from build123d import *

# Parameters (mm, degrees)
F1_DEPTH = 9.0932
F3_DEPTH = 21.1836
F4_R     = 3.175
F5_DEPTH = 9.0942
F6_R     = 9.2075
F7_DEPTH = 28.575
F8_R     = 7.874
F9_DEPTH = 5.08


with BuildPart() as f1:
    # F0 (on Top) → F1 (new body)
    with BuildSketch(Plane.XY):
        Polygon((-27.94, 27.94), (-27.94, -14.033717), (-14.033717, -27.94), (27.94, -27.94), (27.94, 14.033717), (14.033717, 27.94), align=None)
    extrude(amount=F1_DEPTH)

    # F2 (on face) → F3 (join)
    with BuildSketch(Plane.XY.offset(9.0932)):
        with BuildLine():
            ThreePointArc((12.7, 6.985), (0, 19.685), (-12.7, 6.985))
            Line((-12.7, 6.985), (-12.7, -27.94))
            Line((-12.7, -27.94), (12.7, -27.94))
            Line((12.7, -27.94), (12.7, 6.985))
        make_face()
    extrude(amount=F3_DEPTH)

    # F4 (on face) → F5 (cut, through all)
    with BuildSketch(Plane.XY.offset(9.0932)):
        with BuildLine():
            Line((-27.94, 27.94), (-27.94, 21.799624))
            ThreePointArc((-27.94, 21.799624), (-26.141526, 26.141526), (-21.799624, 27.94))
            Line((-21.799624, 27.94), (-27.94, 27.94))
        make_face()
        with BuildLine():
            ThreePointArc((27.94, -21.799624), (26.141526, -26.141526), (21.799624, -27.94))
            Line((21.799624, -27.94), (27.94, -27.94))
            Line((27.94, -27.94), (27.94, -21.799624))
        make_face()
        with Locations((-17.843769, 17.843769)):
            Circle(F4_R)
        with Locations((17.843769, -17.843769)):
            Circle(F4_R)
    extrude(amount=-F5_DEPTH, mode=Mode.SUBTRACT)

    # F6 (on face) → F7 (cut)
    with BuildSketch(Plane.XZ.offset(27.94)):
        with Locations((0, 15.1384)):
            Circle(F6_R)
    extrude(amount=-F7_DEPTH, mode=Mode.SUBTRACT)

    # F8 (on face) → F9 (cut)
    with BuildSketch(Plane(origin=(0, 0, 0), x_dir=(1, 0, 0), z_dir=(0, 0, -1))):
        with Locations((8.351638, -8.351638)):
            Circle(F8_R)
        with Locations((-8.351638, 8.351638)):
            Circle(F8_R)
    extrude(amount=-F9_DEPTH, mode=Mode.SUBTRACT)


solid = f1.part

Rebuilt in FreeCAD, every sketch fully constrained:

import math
import FreeCAD as App
import Part
import Sketcher

V = App.Vector
Q = App.Units.Quantity

doc = App.newDocument("Part")
body = doc.addObject("PartDesign::Body", "Body")

# Sketch on XY plane
sketch1 = body.newObject("Sketcher::SketchObject", "Sketch")
sketch1.AttachmentSupport = (doc.getObject("XY_Plane"), [""])
sketch1.MapMode = "FlatFace"
sketch1.addGeometry(Part.LineSegment(V(-28, 28, 0), V(-28, -14, 0)), False)
sketch1.addGeometry(Part.LineSegment(V(-28, -14, 0), V(-14, -28, 0)), False)
sketch1.addGeometry(Part.LineSegment(V(-14, -28, 0), V(28, -28, 0)), False)
sketch1.addGeometry(Part.LineSegment(V(28, -28, 0), V(28, 14, 0)), False)
sketch1.addGeometry(Part.LineSegment(V(28, 14, 0), V(14, 28, 0)), False)
sketch1.addGeometry(Part.LineSegment(V(14, 28, 0), V(-28, 28, 0)), False)
sketch1.addConstraint(Sketcher.Constraint("Coincident", 0, 2, 1, 1))
sketch1.addConstraint(Sketcher.Constraint("Coincident", 1, 2, 2, 1))
sketch1.addConstraint(Sketcher.Constraint("Coincident", 2, 2, 3, 1))
sketch1.addConstraint(Sketcher.Constraint("Coincident", 3, 2, 4, 1))
sketch1.addConstraint(Sketcher.Constraint("Coincident", 4, 2, 5, 1))
sketch1.addConstraint(Sketcher.Constraint("Coincident", 5, 2, 0, 1))
sketch1.addConstraint(Sketcher.Constraint("Vertical", 0))
sketch1.addConstraint(Sketcher.Constraint("Horizontal", 2))
sketch1.addConstraint(Sketcher.Constraint("Vertical", 3))
sketch1.addConstraint(Sketcher.Constraint("Horizontal", 5))
sketch1.addConstraint(Sketcher.Constraint("Symmetric", 0, 2, 3, 2, -1, 1))
sketch1.addConstraint(Sketcher.Constraint("Symmetric", 1, 2, 4, 2, -1, 1))
sketch1.addConstraint(Sketcher.Constraint("Equal", 5, 0))
sketch1.addConstraint(Sketcher.Constraint("Angle", 1, Q("-45 deg")))
sketch1.addConstraint(Sketcher.Constraint("DistanceX", 0, 2, -1, 1, Q("1.1 in")))
sketch1.addConstraint(Sketcher.Constraint("DistanceX", 2, 1, 2, 2, Q("41.973717 mm")))
pad1 = body.newObject("PartDesign::Pad", "Pad")
pad1.Profile = sketch1
pad1.Length = Q("0.358 in")

# Sketch on XY plane
sketch2 = body.newObject("Sketcher::SketchObject", "Sketch001")
sketch2.AttachmentSupport = (doc.getObject("XY_Plane"), [""])
sketch2.MapMode = "FlatFace"
sketch2.AttachmentOffset = App.Placement(V(0, 0, 0.358 * 25.4), App.Rotation())
sketch2.addGeometry(Part.ArcOfCircle(Part.Circle(V(0, 7, 0), V(0, 0, 1), 13), math.radians(0), math.radians(180)), False)
sketch2.addGeometry(Part.LineSegment(V(-13, 7, 0), V(-13, -28, 0)), False)
sketch2.addGeometry(Part.LineSegment(V(-13, -28, 0), V(13, -28, 0)), False)
sketch2.addGeometry(Part.LineSegment(V(13, -28, 0), V(13, 7, 0)), False)
sketch2.addConstraint(Sketcher.Constraint("Tangent", 0, 2, 1, 1))
sketch2.addConstraint(Sketcher.Constraint("Coincident", 1, 2, 2, 1))
sketch2.addConstraint(Sketcher.Constraint("Coincident", 2, 2, 3, 1))
sketch2.addConstraint(Sketcher.Constraint("Tangent", 3, 2, 0, 1))
sketch2.addConstraint(Sketcher.Constraint("Vertical", 1))
sketch2.addConstraint(Sketcher.Constraint("Horizontal", 2))
sketch2.addConstraint(Sketcher.Constraint("Vertical", 3))
sketch2.addConstraint(Sketcher.Constraint("PointOnObject", 0, 3, -2))
sketch2.addConstraint(Sketcher.Constraint("Radius", 0, Q("0.5 in")))
sketch2.addConstraint(Sketcher.Constraint("DistanceY", 1, 2, -1, 1, Q("1.1 in")))
sketch2.addConstraint(Sketcher.Constraint("DistanceY", 1, 2, 1, 1, Q("1.375 in")))
pad2 = body.newObject("PartDesign::Pad", "Pad001")
pad2.Profile = sketch2
pad2.Length = Q("0.834 in")

# Sketch on XY plane
sketch3 = body.newObject("Sketcher::SketchObject", "Sketch002")
sketch3.AttachmentSupport = (doc.getObject("XY_Plane"), [""])
sketch3.MapMode = "FlatFace"
sketch3.AttachmentOffset = App.Placement(V(0, 0, 0.358 * 25.4), App.Rotation())
sketch3.addGeometry(Part.LineSegment(V(-27.9, 27.9, 0), V(-27.9, 21.8, 0)), False)
sketch3.addGeometry(Part.ArcOfCircle(Part.Circle(V(-21.8, 21.8, 0), V(0, 0, 1), 6.1), math.radians(90), math.radians(180)), False)
sketch3.addGeometry(Part.LineSegment(V(-21.8, 27.9, 0), V(-27.9, 27.9, 0)), False)
sketch3.addGeometry(Part.ArcOfCircle(Part.Circle(V(21.8, -21.8, 0), V(0, 0, 1), 6.1), math.radians(-90), math.radians(0)), False)
sketch3.addGeometry(Part.LineSegment(V(21.8, -27.9, 0), V(27.9, -27.9, 0)), False)
sketch3.addGeometry(Part.LineSegment(V(27.9, -27.9, 0), V(27.9, -21.8, 0)), False)
sketch3.addGeometry(Part.Circle(V(-17.8, 17.8, 0), V(0, 0, 1), 3.2), False)
sketch3.addGeometry(Part.Circle(V(17.8, -17.8, 0), V(0, 0, 1), 3.2), False)
sketch3.addConstraint(Sketcher.Constraint("Tangent", 0, 2, 1, 2))
sketch3.addConstraint(Sketcher.Constraint("Tangent", 1, 1, 2, 1))
sketch3.addConstraint(Sketcher.Constraint("Coincident", 2, 2, 0, 1))
sketch3.addConstraint(Sketcher.Constraint("Tangent", 3, 1, 4, 1))
sketch3.addConstraint(Sketcher.Constraint("Coincident", 4, 2, 5, 1))
sketch3.addConstraint(Sketcher.Constraint("Tangent", 5, 2, 3, 2))
sketch3.addConstraint(Sketcher.Constraint("Vertical", 0))
sketch3.addConstraint(Sketcher.Constraint("Horizontal", 2))
sketch3.addConstraint(Sketcher.Constraint("Horizontal", 4))
sketch3.addConstraint(Sketcher.Constraint("Vertical", 5))
sketch3.addConstraint(Sketcher.Constraint("Equal", 1, 3))
sketch3.addConstraint(Sketcher.Constraint("Equal", 6, 7))
sketch3.addConstraint(Sketcher.Constraint("Symmetric", 1, 3, 3, 3, -1, 1))
sketch3.addConstraint(Sketcher.Constraint("Symmetric", 6, 3, 7, 3, -1, 1))
sketch3.addConstraint(Sketcher.Constraint("Diameter", 6, Q("0.25 in")))
sketch3.addConstraint(Sketcher.Constraint("DistanceX", 0, 2, -1, 1, Q("1.1 in")))
sketch3.addConstraint(Sketcher.Constraint("DistanceY", -1, 1, 1, 1, Q("1.1 in")))
sketch3.addConstraint(Sketcher.Constraint("Radius", 1, Q("6.140374 mm")))
sketch3.addConstraint(Sketcher.Constraint("DistanceX", 6, 3, -1, 1, Q("17.843769 mm")))
sketch3.addConstraint(Sketcher.Constraint("DistanceY", -1, 1, 6, 3, Q("17.843769 mm")))
pocket1 = body.newObject("PartDesign::Pocket", "Pocket")
pocket1.Profile = sketch3
pocket1.Type = "ThroughAll"

# Sketch on XZ plane
sketch4 = body.newObject("Sketcher::SketchObject", "Sketch003")
sketch4.AttachmentSupport = (doc.getObject("XZ_Plane"), [""])
sketch4.MapMode = "FlatFace"
sketch4.AttachmentOffset = App.Placement(V(0, 0, 1.1 * 25.4), App.Rotation())
sketch4.addGeometry(Part.Circle(V(0, 15, 0), V(0, 0, 1), 9), False)
sketch4.addConstraint(Sketcher.Constraint("PointOnObject", 0, 3, -2))
sketch4.addConstraint(Sketcher.Constraint("Diameter", 0, Q("0.725 in")))
sketch4.addConstraint(Sketcher.Constraint("DistanceY", -1, 1, 0, 3, Q("0.596 in")))
pocket2 = body.newObject("PartDesign::Pocket", "Pocket001")
pocket2.Profile = sketch4
pocket2.Length = Q("1.125 in")

# Sketch on XY plane
sketch5 = body.newObject("Sketcher::SketchObject", "Sketch004")
sketch5.AttachmentSupport = (doc.getObject("XY_Plane"), [""])
sketch5.MapMode = "FlatFace"
sketch5.addGeometry(Part.Circle(V(8, 8, 0), V(0, 0, 1), 8), False)
sketch5.addGeometry(Part.Circle(V(-8, -8, 0), V(0, 0, 1), 8), False)
sketch5.addConstraint(Sketcher.Constraint("Equal", 0, 1))
sketch5.addConstraint(Sketcher.Constraint("Symmetric", 0, 3, 1, 3, -1, 1))
sketch5.addConstraint(Sketcher.Constraint("Diameter", 0, Q("0.62 in")))
sketch5.addConstraint(Sketcher.Constraint("DistanceX", -1, 1, 0, 3, Q("8.351638 mm")))
sketch5.addConstraint(Sketcher.Constraint("DistanceY", -1, 1, 0, 3, Q("8.351638 mm")))
pocket3 = body.newObject("PartDesign::Pocket", "Pocket002")
pocket3.Profile = sketch5
pocket3.Length = Q("0.2 in")
pocket3.Reversed = True

doc.recompute()
